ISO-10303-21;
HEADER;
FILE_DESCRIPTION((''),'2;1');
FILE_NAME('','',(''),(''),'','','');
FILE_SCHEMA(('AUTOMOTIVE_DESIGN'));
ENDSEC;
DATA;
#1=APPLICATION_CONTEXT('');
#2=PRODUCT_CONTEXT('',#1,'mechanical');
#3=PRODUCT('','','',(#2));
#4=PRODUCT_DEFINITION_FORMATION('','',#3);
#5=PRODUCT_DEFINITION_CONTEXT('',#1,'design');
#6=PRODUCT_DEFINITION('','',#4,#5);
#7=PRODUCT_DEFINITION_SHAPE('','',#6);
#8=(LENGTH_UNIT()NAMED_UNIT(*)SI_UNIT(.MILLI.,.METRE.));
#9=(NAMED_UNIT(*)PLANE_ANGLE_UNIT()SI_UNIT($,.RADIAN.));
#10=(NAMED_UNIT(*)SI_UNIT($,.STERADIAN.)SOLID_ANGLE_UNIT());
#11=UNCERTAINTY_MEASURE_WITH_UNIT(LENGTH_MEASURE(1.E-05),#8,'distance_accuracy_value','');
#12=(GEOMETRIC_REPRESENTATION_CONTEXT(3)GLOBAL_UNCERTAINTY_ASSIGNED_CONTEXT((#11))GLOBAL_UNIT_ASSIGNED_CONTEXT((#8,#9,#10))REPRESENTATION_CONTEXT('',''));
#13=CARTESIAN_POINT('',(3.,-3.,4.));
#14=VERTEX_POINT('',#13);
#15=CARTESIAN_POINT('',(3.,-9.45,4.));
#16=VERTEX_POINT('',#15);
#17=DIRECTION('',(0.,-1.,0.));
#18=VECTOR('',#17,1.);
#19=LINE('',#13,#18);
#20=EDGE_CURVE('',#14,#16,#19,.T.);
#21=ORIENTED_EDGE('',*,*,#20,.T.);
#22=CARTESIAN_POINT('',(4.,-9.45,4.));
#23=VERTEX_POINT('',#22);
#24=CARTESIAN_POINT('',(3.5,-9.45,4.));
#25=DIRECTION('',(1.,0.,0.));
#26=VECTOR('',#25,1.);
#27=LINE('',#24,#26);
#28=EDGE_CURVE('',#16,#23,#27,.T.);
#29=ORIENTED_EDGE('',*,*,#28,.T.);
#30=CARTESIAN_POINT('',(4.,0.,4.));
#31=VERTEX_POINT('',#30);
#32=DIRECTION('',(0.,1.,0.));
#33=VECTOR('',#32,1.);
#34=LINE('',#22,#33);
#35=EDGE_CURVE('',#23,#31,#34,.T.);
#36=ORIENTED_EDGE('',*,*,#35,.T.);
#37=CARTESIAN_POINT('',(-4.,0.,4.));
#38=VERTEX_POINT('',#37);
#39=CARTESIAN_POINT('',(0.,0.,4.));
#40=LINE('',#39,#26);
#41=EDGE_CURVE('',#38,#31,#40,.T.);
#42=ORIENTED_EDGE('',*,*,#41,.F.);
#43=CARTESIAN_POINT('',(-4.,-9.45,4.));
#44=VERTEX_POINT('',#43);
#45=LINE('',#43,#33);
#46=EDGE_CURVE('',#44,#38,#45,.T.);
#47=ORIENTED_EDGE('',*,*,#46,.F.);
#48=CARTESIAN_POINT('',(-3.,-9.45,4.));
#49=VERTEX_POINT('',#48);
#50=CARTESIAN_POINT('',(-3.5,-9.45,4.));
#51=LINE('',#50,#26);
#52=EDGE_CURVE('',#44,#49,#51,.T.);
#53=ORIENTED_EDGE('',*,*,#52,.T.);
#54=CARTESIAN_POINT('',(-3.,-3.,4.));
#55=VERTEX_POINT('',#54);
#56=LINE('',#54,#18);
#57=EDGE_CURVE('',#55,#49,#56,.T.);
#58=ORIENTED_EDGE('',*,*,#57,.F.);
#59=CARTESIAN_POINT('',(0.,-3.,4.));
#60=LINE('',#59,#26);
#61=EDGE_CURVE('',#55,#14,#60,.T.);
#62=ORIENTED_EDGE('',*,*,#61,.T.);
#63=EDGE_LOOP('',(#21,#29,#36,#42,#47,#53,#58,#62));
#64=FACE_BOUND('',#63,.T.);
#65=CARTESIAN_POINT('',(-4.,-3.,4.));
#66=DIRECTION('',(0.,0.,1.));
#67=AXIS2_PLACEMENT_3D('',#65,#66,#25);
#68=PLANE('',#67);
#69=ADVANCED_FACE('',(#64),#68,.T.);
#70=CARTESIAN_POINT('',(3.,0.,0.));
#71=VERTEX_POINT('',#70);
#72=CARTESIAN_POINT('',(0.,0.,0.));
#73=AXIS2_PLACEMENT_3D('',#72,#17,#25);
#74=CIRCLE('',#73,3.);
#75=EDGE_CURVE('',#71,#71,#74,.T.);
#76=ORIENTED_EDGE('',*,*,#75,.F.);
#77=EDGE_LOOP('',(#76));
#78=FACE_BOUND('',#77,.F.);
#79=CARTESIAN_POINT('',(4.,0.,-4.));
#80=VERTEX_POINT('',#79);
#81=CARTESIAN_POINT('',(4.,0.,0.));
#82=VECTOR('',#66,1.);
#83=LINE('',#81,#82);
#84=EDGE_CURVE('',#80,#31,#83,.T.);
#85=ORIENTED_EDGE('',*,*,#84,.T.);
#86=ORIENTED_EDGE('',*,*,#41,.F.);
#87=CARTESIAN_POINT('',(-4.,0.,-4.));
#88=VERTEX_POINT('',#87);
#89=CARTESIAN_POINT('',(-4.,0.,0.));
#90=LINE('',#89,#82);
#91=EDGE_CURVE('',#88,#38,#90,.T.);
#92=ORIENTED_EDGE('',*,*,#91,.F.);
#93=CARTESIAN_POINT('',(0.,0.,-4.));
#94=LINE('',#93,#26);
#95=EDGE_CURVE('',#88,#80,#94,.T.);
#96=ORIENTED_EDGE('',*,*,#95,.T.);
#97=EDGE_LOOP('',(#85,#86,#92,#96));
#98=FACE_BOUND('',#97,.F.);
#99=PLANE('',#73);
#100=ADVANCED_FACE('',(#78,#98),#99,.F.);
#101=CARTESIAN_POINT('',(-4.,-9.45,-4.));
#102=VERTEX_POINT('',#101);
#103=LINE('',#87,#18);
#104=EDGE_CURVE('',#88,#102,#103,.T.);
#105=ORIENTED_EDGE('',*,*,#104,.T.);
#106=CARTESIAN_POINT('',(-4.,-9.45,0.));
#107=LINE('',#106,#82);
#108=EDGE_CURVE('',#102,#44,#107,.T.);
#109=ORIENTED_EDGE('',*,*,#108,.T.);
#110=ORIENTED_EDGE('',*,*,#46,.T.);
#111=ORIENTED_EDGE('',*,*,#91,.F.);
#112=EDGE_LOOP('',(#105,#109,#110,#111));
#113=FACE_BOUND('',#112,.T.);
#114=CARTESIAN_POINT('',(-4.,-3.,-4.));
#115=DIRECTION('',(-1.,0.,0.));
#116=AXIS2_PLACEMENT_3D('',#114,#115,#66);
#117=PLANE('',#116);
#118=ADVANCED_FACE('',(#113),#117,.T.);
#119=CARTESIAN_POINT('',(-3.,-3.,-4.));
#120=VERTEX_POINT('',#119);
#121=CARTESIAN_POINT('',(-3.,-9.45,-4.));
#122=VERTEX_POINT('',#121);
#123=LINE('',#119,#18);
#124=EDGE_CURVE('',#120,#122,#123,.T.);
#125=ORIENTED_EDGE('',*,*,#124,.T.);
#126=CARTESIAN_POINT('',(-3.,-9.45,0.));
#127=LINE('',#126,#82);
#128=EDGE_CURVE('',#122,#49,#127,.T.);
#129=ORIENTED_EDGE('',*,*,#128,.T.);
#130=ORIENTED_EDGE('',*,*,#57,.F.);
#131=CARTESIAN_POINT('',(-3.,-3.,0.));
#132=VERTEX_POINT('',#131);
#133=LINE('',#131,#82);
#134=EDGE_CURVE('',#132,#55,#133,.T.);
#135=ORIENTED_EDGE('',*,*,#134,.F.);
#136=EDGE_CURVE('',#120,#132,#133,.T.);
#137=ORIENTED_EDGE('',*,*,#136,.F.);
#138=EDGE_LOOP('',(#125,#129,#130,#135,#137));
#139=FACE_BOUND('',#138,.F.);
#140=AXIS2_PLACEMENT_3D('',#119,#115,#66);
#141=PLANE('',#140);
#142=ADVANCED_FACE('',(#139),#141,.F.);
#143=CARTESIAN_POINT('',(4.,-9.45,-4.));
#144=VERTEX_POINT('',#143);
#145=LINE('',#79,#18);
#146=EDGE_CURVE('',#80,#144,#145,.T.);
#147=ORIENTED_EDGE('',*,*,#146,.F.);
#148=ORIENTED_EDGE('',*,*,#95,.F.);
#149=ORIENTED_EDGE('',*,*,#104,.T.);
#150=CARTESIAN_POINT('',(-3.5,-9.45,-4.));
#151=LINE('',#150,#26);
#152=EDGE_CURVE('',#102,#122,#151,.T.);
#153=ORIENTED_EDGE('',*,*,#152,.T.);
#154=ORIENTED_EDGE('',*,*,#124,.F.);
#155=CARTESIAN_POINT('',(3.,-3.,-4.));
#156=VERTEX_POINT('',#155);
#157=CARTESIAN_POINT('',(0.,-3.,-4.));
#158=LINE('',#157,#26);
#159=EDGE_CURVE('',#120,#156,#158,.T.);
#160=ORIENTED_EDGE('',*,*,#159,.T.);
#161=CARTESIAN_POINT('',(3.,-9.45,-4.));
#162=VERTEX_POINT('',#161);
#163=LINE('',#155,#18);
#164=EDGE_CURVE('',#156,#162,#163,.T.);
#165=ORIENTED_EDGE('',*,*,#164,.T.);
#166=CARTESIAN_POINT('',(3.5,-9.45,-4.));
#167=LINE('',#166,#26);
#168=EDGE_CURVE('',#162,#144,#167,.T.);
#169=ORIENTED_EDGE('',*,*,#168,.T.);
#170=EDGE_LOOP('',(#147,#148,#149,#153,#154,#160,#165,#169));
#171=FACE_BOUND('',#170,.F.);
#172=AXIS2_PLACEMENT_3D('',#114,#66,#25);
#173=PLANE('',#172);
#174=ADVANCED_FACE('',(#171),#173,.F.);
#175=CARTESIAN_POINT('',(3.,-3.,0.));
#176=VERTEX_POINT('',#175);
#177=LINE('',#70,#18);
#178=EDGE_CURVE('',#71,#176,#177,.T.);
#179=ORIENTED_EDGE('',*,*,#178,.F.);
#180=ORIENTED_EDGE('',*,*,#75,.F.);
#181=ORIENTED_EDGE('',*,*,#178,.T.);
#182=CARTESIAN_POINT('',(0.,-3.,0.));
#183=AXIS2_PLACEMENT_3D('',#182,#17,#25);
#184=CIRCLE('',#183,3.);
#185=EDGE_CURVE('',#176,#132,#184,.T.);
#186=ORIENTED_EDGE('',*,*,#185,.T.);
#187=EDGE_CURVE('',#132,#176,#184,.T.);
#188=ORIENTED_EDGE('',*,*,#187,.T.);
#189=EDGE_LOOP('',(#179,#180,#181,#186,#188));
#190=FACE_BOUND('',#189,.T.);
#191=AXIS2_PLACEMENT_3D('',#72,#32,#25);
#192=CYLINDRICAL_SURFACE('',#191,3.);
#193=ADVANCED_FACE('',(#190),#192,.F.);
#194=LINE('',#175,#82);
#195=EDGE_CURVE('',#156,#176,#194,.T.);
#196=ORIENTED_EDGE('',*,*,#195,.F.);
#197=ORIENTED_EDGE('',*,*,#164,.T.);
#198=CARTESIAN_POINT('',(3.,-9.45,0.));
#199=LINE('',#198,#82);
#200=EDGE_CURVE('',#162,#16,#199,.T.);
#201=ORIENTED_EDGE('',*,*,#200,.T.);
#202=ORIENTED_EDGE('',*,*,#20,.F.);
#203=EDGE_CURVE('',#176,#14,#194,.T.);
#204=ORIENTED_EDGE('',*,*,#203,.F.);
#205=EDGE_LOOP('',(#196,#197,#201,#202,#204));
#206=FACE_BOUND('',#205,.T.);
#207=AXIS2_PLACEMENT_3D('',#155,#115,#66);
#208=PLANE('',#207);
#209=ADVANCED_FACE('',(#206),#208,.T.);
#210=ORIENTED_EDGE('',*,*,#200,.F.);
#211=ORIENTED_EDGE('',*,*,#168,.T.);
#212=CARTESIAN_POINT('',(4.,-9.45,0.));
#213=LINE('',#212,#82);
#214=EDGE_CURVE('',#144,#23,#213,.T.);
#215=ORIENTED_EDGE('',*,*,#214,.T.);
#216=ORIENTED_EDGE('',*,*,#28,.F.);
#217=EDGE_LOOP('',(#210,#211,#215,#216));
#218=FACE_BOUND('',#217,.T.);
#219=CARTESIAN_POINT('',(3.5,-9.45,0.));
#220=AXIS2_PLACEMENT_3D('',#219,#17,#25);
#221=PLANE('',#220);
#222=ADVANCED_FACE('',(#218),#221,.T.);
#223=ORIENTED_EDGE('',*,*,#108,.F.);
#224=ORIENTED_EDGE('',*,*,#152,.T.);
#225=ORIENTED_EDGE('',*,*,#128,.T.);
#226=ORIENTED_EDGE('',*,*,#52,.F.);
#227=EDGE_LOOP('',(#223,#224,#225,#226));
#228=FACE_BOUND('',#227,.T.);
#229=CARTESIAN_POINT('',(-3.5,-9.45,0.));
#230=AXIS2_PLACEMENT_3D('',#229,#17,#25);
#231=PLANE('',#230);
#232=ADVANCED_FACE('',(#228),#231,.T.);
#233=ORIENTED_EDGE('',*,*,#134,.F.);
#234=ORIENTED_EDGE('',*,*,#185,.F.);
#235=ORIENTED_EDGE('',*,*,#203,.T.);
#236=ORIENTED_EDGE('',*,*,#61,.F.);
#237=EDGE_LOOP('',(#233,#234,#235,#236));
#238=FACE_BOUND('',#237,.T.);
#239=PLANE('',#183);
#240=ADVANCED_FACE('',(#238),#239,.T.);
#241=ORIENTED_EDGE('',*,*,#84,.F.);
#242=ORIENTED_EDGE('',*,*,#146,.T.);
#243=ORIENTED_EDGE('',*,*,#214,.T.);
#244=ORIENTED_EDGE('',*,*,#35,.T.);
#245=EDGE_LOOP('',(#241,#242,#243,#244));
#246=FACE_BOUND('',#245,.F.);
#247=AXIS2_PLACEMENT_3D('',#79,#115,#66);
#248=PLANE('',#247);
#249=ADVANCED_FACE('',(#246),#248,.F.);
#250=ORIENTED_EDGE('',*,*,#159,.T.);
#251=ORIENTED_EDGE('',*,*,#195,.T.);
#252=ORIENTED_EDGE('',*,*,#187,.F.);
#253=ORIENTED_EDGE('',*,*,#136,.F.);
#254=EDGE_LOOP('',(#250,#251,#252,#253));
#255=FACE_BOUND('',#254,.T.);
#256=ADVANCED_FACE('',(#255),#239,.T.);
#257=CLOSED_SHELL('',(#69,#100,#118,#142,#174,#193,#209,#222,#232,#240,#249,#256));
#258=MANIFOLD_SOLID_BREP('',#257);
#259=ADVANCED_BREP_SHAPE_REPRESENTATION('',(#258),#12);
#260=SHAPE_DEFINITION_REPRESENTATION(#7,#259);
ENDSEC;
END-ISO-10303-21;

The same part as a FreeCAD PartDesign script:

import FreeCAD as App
import Part
import Sketcher
Q = App.Units.Quantity

doc = App.newDocument("Part")
params = doc.addObject("Spreadsheet::Sheet", "Params")
for row, (alias, value) in enumerate([
    ("sketch1_diameter", "6 mm"),
    ("sketch1_width", "8 mm"),
    ("pad1_length", "3 mm"),
    ("sketch2_width", "1 mm"),
    ("sketch2_height", "8 mm"),
    ("pad2_length", "6.45 mm"),
], start=1):
    params.set(f"A{row}", alias)
    params.set(f"B{row}", "=" + value)
    params.setAlias(f"B{row}", alias)

body = doc.addObject("PartDesign::Body", "Body")

# Sketch on XZ plane
sketch1 = body.newObject("Sketcher::SketchObject", "Sketch")
sketch1.AttachmentSupport = (doc.getObject("XZ_Plane"), [""])
sketch1.MapMode = "FlatFace"
sketch1.addGeometry([
    Part.LineSegment(App.Vector(-4, 4, 0), App.Vector(-4, -4, 0)),  # 0
    Part.LineSegment(App.Vector(-4, -4, 0), App.Vector(4, -4, 0)),  # 1
    Part.LineSegment(App.Vector(4, -4, 0), App.Vector(4, 4, 0)),  # 2
    Part.LineSegment(App.Vector(4, 4, 0), App.Vector(-4, 4, 0)),  # 3
    Part.Circle(App.Vector(0, 0, 0), App.Vector(0, 0, 1), 3),  # 4
], False)
sketch1.addConstraint([
    Sketcher.Constraint("Coincident", 0, 2, 1, 1),
    Sketcher.Constraint("Coincident", 1, 2, 2, 1),
    Sketcher.Constraint("Coincident", 2, 2, 3, 1),
    Sketcher.Constraint("Coincident", 3, 2, 0, 1),
    Sketcher.Constraint("Vertical", 0),
    Sketcher.Constraint("Horizontal", 1),
    Sketcher.Constraint("Vertical", 2),
    Sketcher.Constraint("Horizontal", 3),
    Sketcher.Constraint("Coincident", 4, 3, -1, 1),
    Sketcher.Constraint("Symmetric", 0, 2, 2, 2, -1, 1),
    Sketcher.Constraint("Equal", 3, 0),
    Sketcher.Constraint("Diameter", 4, Q("6 mm")),
    Sketcher.Constraint("DistanceX", 1, 1, 1, 2, Q("8 mm")),
])
sketch1.setExpression("Constraints[11]", "Params.sketch1_diameter")
sketch1.setExpression("Constraints[12]", "Params.sketch1_width")
pad1 = body.newObject("PartDesign::Pad", "Pad")
pad1.Profile = sketch1
pad1.setExpression("Length", "Params.pad1_length")

# Sketch on XZ plane
sketch2 = body.newObject("Sketcher::SketchObject", "Sketch001")
sketch2.AttachmentSupport = (doc.getObject("XZ_Plane"), [""])
sketch2.MapMode = "FlatFace"
sketch2.AttachmentOffset = App.Placement(App.Vector(0, 0, 3), App.Rotation())
sketch2.addGeometry([
    Part.LineSegment(App.Vector(-4, 4, 0), App.Vector(-4, -4, 0)),  # 0
    Part.LineSegment(App.Vector(-4, -4, 0), App.Vector(-3, -4, 0)),  # 1
    Part.LineSegment(App.Vector(-3, -4, 0), App.Vector(-3, 4, 0)),  # 2
    Part.LineSegment(App.Vector(-3, 4, 0), App.Vector(-4, 4, 0)),  # 3
    Part.LineSegment(App.Vector(3, 4, 0), App.Vector(3, -4, 0)),  # 4
    Part.LineSegment(App.Vector(3, -4, 0), App.Vector(4, -4, 0)),  # 5
    Part.LineSegment(App.Vector(4, -4, 0), App.Vector(4, 4, 0)),  # 6
    Part.LineSegment(App.Vector(4, 4, 0), App.Vector(3, 4, 0)),  # 7
], False)
sketch2.addConstraint([
    Sketcher.Constraint("Coincident", 0, 2, 1, 1),
    Sketcher.Constraint("Coincident", 1, 2, 2, 1),
    Sketcher.Constraint("Coincident", 2, 2, 3, 1),
    Sketcher.Constraint("Coincident", 3, 2, 0, 1),
    Sketcher.Constraint("Coincident", 4, 2, 5, 1),
    Sketcher.Constraint("Coincident", 5, 2, 6, 1),
    Sketcher.Constraint("Coincident", 6, 2, 7, 1),
    Sketcher.Constraint("Coincident", 7, 2, 4, 1),
    Sketcher.Constraint("Vertical", 0),
    Sketcher.Constraint("Horizontal", 1),
    Sketcher.Constraint("Vertical", 2),
    Sketcher.Constraint("Horizontal", 3),
    Sketcher.Constraint("Vertical", 4),
    Sketcher.Constraint("Horizontal", 5),
    Sketcher.Constraint("Vertical", 6),
    Sketcher.Constraint("Horizontal", 7),
    Sketcher.Constraint("Symmetric", 2, 2, 4, 2, -1, 1),
    Sketcher.Constraint("Symmetric", 0, 2, 6, 2, -1, 1),
    Sketcher.Constraint("Horizontal", 1, 2, 4, 2),
    Sketcher.Constraint("DistanceX", 1, 1, 1, 2, Q("1 mm")),
    Sketcher.Constraint("DistanceY", 0, 2, 0, 1, Q("8 mm")),
    Sketcher.Constraint("DistanceX", 0, 2, -1, 1, Q("4 mm")),
])
sketch2.setExpression("Constraints[19]", "Params.sketch2_width")
sketch2.setExpression("Constraints[20]", "Params.sketch2_height")
pad2 = body.newObject("PartDesign::Pad", "Pad001")
pad2.Profile = sketch2
pad2.setExpression("Length", "Params.pad2_length")

doc.recompute()
